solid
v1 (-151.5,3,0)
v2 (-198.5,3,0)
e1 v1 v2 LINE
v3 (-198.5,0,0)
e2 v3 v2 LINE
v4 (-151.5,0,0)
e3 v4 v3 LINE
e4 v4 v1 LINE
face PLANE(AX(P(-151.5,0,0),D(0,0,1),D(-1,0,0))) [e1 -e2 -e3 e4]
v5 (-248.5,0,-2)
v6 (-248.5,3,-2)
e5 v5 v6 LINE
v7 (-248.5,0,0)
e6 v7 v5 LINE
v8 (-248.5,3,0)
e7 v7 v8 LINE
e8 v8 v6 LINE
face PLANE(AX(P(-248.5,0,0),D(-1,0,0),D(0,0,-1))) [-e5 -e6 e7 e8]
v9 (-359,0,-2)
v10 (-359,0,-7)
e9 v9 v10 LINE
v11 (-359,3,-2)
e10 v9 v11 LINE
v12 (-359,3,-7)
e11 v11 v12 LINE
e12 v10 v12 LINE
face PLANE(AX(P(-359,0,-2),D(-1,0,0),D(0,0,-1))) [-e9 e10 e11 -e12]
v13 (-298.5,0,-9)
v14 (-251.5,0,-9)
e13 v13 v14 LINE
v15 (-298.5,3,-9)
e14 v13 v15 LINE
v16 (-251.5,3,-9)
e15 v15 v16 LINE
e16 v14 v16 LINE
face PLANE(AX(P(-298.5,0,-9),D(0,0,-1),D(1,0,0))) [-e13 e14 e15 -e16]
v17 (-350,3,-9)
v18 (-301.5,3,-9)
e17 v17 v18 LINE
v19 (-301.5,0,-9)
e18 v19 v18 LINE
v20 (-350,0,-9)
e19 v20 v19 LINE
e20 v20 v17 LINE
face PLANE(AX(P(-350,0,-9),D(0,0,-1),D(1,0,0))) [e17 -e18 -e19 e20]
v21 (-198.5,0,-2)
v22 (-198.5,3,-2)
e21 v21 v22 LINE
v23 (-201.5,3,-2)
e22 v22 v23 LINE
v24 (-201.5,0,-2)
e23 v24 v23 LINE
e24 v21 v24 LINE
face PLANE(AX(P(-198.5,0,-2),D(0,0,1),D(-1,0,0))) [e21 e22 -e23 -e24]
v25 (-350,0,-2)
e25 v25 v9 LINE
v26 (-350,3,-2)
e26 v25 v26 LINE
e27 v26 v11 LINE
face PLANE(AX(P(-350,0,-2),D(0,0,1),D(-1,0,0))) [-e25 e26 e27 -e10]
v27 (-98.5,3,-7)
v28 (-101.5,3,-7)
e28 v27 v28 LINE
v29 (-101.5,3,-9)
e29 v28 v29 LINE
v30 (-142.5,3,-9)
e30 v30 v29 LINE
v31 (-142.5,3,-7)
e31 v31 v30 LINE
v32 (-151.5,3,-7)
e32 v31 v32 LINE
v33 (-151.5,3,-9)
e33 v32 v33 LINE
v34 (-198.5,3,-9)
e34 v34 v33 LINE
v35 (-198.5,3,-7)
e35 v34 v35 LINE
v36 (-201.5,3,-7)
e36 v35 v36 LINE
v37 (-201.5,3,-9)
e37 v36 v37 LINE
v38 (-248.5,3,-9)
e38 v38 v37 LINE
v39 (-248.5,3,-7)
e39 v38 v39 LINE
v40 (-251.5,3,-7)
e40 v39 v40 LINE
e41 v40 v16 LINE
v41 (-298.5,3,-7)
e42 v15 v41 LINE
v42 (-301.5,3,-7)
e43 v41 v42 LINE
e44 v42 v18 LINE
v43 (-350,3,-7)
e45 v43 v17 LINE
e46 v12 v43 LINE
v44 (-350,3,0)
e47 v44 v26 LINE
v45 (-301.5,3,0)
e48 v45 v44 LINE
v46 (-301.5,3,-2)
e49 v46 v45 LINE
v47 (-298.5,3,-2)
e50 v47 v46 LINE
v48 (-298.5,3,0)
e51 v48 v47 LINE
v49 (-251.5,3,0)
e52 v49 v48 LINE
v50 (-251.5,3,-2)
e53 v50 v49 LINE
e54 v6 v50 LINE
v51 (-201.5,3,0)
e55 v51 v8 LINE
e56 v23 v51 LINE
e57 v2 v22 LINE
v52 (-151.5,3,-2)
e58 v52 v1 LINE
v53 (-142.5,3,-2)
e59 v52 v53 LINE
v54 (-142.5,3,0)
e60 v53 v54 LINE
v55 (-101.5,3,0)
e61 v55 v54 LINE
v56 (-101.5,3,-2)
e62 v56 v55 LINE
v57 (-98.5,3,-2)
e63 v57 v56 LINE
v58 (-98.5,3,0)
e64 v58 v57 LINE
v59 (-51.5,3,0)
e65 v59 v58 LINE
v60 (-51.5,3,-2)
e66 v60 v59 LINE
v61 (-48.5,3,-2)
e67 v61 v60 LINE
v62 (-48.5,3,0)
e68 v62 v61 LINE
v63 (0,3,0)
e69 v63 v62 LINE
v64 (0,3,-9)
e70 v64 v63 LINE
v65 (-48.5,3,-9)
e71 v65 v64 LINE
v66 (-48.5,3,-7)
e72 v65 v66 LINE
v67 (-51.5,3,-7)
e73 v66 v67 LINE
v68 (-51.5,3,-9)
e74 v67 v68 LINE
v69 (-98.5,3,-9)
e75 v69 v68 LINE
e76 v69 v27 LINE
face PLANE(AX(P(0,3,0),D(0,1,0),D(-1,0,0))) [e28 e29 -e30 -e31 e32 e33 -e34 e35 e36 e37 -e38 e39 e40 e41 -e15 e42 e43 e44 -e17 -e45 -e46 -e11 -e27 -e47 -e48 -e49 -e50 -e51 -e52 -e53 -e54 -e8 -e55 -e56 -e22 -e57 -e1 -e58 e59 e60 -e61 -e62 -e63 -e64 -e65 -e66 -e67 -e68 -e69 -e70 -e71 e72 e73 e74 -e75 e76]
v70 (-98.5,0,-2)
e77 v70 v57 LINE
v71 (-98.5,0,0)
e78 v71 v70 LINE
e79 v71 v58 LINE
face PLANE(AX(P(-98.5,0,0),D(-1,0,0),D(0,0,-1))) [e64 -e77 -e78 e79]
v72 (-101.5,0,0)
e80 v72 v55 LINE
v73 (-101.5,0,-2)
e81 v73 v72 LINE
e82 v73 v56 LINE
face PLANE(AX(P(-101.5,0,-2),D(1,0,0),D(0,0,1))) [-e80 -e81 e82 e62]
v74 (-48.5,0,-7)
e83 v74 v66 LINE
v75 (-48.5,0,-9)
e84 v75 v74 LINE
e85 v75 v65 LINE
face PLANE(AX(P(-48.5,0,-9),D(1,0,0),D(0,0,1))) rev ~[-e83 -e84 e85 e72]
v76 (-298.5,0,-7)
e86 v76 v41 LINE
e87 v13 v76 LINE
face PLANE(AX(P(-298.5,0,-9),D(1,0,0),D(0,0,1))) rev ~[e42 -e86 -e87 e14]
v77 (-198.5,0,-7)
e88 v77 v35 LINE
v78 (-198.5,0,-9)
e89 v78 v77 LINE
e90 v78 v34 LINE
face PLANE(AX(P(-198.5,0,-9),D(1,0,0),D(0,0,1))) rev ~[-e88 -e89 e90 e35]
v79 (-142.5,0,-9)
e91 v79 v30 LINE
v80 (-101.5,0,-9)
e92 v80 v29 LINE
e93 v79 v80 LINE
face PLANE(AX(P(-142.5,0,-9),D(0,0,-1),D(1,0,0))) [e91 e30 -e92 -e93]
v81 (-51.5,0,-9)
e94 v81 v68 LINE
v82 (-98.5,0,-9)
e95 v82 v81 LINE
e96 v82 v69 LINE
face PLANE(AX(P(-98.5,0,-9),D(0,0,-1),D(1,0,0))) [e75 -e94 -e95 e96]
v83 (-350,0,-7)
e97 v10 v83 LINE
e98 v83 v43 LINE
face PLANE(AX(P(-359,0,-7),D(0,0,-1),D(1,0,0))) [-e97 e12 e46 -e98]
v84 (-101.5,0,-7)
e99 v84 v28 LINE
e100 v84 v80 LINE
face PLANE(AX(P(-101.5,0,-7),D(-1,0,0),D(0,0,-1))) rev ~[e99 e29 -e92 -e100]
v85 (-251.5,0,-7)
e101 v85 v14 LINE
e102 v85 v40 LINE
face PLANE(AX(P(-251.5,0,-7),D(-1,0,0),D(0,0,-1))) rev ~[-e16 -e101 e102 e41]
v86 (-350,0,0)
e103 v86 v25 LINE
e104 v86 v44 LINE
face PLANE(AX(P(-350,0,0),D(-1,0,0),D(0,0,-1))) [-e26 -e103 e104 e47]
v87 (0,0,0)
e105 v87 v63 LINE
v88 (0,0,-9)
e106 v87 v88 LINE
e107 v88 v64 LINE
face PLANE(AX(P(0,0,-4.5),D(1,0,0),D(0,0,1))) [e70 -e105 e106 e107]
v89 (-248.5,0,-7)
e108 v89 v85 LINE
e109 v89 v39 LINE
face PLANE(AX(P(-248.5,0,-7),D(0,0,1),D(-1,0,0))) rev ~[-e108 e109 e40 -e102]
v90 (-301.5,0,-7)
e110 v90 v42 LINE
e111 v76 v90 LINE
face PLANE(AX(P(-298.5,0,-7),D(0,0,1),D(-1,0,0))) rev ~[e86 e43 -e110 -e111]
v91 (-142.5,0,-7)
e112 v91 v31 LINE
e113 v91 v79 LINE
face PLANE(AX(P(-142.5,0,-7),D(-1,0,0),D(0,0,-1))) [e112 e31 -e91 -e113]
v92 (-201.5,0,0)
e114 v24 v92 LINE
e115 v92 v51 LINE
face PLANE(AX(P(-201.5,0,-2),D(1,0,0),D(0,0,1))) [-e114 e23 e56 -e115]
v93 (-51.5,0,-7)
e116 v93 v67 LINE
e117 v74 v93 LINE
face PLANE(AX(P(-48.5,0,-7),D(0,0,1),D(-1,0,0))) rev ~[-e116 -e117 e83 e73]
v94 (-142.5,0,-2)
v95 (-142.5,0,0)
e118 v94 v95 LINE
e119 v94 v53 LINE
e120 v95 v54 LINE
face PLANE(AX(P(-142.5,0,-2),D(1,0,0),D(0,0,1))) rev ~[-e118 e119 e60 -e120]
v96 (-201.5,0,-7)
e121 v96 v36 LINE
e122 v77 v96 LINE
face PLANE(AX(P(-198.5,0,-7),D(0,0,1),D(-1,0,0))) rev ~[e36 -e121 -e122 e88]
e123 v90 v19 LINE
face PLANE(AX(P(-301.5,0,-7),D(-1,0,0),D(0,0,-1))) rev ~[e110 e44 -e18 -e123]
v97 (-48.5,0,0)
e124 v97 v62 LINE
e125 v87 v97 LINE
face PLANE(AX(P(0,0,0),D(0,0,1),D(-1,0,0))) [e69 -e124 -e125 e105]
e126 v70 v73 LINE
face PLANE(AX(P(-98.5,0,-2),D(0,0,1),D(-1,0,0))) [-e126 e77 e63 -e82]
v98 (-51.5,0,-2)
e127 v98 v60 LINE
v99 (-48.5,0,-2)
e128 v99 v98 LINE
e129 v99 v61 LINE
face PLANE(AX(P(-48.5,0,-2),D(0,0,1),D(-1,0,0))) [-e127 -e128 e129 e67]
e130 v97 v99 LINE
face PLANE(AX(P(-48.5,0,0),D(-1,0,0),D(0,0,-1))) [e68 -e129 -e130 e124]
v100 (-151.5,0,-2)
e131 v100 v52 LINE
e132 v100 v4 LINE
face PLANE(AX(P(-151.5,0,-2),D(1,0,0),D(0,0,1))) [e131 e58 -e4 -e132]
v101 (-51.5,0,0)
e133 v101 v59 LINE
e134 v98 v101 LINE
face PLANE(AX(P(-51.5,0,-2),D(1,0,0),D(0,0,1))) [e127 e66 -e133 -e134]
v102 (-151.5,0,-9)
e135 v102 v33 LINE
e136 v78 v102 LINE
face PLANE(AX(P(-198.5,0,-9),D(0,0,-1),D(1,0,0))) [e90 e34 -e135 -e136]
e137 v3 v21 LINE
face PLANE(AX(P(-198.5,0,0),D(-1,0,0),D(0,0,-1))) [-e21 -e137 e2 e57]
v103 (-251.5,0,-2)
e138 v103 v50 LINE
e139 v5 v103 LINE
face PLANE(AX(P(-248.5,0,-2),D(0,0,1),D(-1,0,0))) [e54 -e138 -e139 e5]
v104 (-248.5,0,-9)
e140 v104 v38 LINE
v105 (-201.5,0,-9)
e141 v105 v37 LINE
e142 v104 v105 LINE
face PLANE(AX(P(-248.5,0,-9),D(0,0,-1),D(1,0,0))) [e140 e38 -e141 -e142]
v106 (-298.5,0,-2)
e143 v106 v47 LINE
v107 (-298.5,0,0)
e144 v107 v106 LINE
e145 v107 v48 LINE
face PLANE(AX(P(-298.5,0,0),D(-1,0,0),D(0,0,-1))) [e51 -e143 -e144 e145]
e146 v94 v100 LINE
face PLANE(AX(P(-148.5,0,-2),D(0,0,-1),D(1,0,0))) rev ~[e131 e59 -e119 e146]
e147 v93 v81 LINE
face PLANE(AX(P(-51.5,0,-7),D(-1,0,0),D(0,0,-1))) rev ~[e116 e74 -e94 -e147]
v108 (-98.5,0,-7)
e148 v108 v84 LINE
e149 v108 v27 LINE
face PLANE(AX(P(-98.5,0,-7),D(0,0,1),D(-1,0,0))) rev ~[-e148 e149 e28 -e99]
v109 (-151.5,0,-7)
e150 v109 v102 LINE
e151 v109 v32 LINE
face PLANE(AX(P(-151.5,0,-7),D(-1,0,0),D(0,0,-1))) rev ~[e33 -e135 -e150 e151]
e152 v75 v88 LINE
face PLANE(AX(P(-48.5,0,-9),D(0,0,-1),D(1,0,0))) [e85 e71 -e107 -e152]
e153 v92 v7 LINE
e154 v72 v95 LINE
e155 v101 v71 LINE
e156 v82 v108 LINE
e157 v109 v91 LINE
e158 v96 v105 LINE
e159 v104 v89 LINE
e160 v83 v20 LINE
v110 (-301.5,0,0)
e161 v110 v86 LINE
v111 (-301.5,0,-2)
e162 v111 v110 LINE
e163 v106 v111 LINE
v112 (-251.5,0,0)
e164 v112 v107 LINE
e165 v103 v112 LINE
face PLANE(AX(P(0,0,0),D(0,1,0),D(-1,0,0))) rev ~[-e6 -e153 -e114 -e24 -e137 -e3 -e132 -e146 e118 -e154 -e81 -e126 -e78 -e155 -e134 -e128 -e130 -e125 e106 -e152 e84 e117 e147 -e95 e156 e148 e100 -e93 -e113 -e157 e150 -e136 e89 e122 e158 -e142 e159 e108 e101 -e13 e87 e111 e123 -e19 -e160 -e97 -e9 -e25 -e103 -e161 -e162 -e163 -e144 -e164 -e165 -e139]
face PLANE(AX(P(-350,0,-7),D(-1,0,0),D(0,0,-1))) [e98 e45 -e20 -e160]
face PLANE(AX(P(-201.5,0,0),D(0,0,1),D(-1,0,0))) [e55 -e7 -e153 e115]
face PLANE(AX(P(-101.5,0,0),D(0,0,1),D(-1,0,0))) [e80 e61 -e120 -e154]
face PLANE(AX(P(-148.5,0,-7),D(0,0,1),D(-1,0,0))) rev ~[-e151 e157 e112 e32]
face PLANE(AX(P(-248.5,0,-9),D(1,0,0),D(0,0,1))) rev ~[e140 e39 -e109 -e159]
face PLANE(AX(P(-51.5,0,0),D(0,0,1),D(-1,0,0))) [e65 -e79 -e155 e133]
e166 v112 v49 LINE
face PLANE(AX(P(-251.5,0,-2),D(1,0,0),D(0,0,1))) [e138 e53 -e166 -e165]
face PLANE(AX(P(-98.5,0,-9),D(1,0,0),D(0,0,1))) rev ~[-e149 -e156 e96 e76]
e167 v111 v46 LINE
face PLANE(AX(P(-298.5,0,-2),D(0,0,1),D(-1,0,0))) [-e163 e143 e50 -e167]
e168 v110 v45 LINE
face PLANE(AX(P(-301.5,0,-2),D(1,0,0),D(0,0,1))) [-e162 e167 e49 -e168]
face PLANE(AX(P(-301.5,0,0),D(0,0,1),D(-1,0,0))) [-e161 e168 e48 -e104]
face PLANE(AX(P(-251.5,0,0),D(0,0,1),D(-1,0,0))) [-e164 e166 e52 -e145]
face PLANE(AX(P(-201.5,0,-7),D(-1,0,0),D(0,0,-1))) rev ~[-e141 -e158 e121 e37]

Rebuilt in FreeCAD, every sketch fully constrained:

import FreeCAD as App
import Part
import Sketcher

V = App.Vector
Q = App.Units.Quantity


def add_polygon(sketch, points):
    """Adds a closed chain of lines whose ends are joined by coincident constraints."""
    first, n = sketch.GeometryCount, len(points)
    for a, b in zip(points, points[1:] + points[:1]):
        sketch.addGeometry(Part.LineSegment(App.Vector(*a, 0), App.Vector(*b, 0)), False)
    for i in range(n):
        sketch.addConstraint(Sketcher.Constraint("Coincident", first + i, 2, first + (i + 1) % n, 1))

doc = App.newDocument("Part")
body = doc.addObject("PartDesign::Body", "Body")

# Sketch on XZ plane
sketch1 = body.newObject("Sketcher::SketchObject", "Sketch")
sketch1.AttachmentSupport = (doc.getObject("XZ_Plane"), [""])
sketch1.MapMode = "FlatFace"
add_polygon(sketch1, [(-48.5, 0), (0, 0), (0, -9), (-48.5, -9), (-48.5, -7), (-51.5, -7), (-51.5, -9), (-98.5, -9), (-98.5, -7), (-101.5, -7), (-101.5, -9), (-142.5, -9), (-142.5, -7), (-151.5, -7), (-151.5, -9), (-198.5, -9), (-198.5, -7), (-201.5, -7), (-201.5, -9), (-248.5, -9), (-248.5, -7), (-251.5, -7), (-251.5, -9), (-298.5, -9), (-298.5, -7), (-301.5, -7), (-301.5, -9), (-350, -9), (-350, -7), (-359, -7), (-359, -2), (-350, -2), (-350, 0), (-301.5, 0), (-301.5, -2), (-298.5, -2), (-298.5, 0), (-251.5, 0), (-251.5, -2), (-248.5, -2), (-248.5, 0), (-201.5, 0), (-201.5, -2), (-198.5, -2), (-198.5, 0), (-151.5, 0), (-151.5, -2), (-142.5, -2), (-142.5, 0), (-101.5, 0), (-101.5, -2), (-98.5, -2), (-98.5, 0), (-51.5, 0), (-51.5, -2), (-48.5, -2)])  # lines 0-55
sketch1.addConstraint(Sketcher.Constraint("Horizontal", 0))
sketch1.addConstraint(Sketcher.Constraint("Vertical", 1))
sketch1.addConstraint(Sketcher.Constraint("Horizontal", 2))
sketch1.addConstraint(Sketcher.Constraint("Vertical", 3))
sketch1.addConstraint(Sketcher.Constraint("Horizontal", 4))
sketch1.addConstraint(Sketcher.Constraint("Vertical", 5))
sketch1.addConstraint(Sketcher.Constraint("Horizontal", 6))
sketch1.addConstraint(Sketcher.Constraint("Vertical", 7))
sketch1.addConstraint(Sketcher.Constraint("Horizontal", 8))
sketch1.addConstraint(Sketcher.Constraint("Vertical", 9))
sketch1.addConstraint(Sketcher.Constraint("Horizontal", 10))
sketch1.addConstraint(Sketcher.Constraint("Vertical", 11))
sketch1.addConstraint(Sketcher.Constraint("Horizontal", 12))
sketch1.addConstraint(Sketcher.Constraint("Vertical", 13))
sketch1.addConstraint(Sketcher.Constraint("Horizontal", 14))
sketch1.addConstraint(Sketcher.Constraint("Vertical", 15))
sketch1.addConstraint(Sketcher.Constraint("Horizontal", 16))
sketch1.addConstraint(Sketcher.Constraint("Vertical", 17))
sketch1.addConstraint(Sketcher.Constraint("Horizontal", 18))
sketch1.addConstraint(Sketcher.Constraint("Vertical", 19))
sketch1.addConstraint(Sketcher.Constraint("Horizontal", 20))
sketch1.addConstraint(Sketcher.Constraint("Vertical", 21))
sketch1.addConstraint(Sketcher.Constraint("Horizontal", 22))
sketch1.addConstraint(Sketcher.Constraint("Vertical", 23))
sketch1.addConstraint(Sketcher.Constraint("Horizontal", 24))
sketch1.addConstraint(Sketcher.Constraint("Vertical", 25))
sketch1.addConstraint(Sketcher.Constraint("Horizontal", 26))
sketch1.addConstraint(Sketcher.Constraint("Vertical", 27))
sketch1.addConstraint(Sketcher.Constraint("Horizontal", 28))
sketch1.addConstraint(Sketcher.Constraint("Vertical", 29))
sketch1.addConstraint(Sketcher.Constraint("Horizontal", 30))
sketch1.addConstraint(Sketcher.Constraint("Vertical", 31))
sketch1.addConstraint(Sketcher.Constraint("Horizontal", 32))
sketch1.addConstraint(Sketcher.Constraint("Vertical", 33))
sketch1.addConstraint(Sketcher.Constraint("Horizontal", 34))
sketch1.addConstraint(Sketcher.Constraint("Vertical", 35))
sketch1.addConstraint(Sketcher.Constraint("Horizontal", 36))
sketch1.addConstraint(Sketcher.Constraint("Vertical", 37))
sketch1.addConstraint(Sketcher.Constraint("Horizontal", 38))
sketch1.addConstraint(Sketcher.Constraint("Vertical", 39))
sketch1.addConstraint(Sketcher.Constraint("Horizontal", 40))
sketch1.addConstraint(Sketcher.Constraint("Vertical", 41))
sketch1.addConstraint(Sketcher.Constraint("Horizontal", 42))
sketch1.addConstraint(Sketcher.Constraint("Vertical", 43))
sketch1.addConstraint(Sketcher.Constraint("Horizontal", 44))
sketch1.addConstraint(Sketcher.Constraint("Vertical", 45))
sketch1.addConstraint(Sketcher.Constraint("Horizontal", 46))
sketch1.addConstraint(Sketcher.Constraint("Vertical", 47))
sketch1.addConstraint(Sketcher.Constraint("Horizontal", 48))
sketch1.addConstraint(Sketcher.Constraint("Vertical", 49))
sketch1.addConstraint(Sketcher.Constraint("Horizontal", 50))
sketch1.addConstraint(Sketcher.Constraint("Vertical", 51))
sketch1.addConstraint(Sketcher.Constraint("Horizontal", 52))
sketch1.addConstraint(Sketcher.Constraint("Vertical", 53))
sketch1.addConstraint(Sketcher.Constraint("Horizontal", 54))
sketch1.addConstraint(Sketcher.Constraint("Vertical", 55))
sketch1.addConstraint(Sketcher.Constraint("Coincident", 0, 2, -1, 1))
sketch1.addConstraint(Sketcher.Constraint("PointOnObject", 31, 2, -1))
sketch1.addConstraint(Sketcher.Constraint("PointOnObject", 35, 2, -1))
sketch1.addConstraint(Sketcher.Constraint("PointOnObject", 39, 2, -1))
sketch1.addConstraint(Sketcher.Constraint("PointOnObject", 43, 2, -1))
sketch1.addConstraint(Sketcher.Constraint("PointOnObject", 47, 2, -1))
sketch1.addConstraint(Sketcher.Constraint("PointOnObject", 51, 2, -1))
sketch1.addConstraint(Sketcher.Constraint("Horizontal", 2, 2, 5, 2))
sketch1.addConstraint(Sketcher.Constraint("Horizontal", 4, 2, 7, 2))
sketch1.addConstraint(Sketcher.Constraint("Horizontal", 6, 2, 9, 2))
sketch1.addConstraint(Sketcher.Constraint("Horizontal", 8, 2, 11, 2))
sketch1.addConstraint(Sketcher.Constraint("Horizontal", 10, 2, 13, 2))
sketch1.addConstraint(Sketcher.Constraint("Horizontal", 12, 2, 15, 2))
sketch1.addConstraint(Sketcher.Constraint("Horizontal", 14, 2, 17, 2))
sketch1.addConstraint(Sketcher.Constraint("Horizontal", 16, 2, 19, 2))
sketch1.addConstraint(Sketcher.Constraint("Horizontal", 18, 2, 21, 2))
sketch1.addConstraint(Sketcher.Constraint("Horizontal", 20, 2, 23, 2))
sketch1.addConstraint(Sketcher.Constraint("Horizontal", 22, 2, 25, 2))
sketch1.addConstraint(Sketcher.Constraint("Horizontal", 24, 2, 27, 2))
sketch1.addConstraint(Sketcher.Constraint("Horizontal", 30, 2, 33, 2))
sketch1.addConstraint(Sketcher.Constraint("Horizontal", 34, 2, 37, 2))
sketch1.addConstraint(Sketcher.Constraint("Horizontal", 38, 2, 41, 2))
sketch1.addConstraint(Sketcher.Constraint("Horizontal", 42, 2, 45, 2))
sketch1.addConstraint(Sketcher.Constraint("Horizontal", 46, 2, 49, 2))
sketch1.addConstraint(Sketcher.Constraint("Horizontal", 50, 2, 53, 2))
sketch1.addConstraint(Sketcher.Constraint("Vertical", 27, 2, 30, 2))
sketch1.addConstraint(Sketcher.Constraint("Vertical", 25, 2, 32, 2))
sketch1.addConstraint(Sketcher.Constraint("Vertical", 23, 2, 34, 2))
sketch1.addConstraint(Sketcher.Constraint("Vertical", 21, 2, 36, 2))
sketch1.addConstraint(Sketcher.Constraint("Vertical", 19, 2, 38, 2))
sketch1.addConstraint(Sketcher.Constraint("Vertical", 17, 2, 40, 2))
sketch1.addConstraint(Sketcher.Constraint("Vertical", 15, 2, 42, 2))
sketch1.addConstraint(Sketcher.Constraint("Vertical", 13, 2, 44, 2))
sketch1.addConstraint(Sketcher.Constraint("Vertical", 11, 2, 46, 2))
sketch1.addConstraint(Sketcher.Constraint("Vertical", 9, 2, 48, 2))
sketch1.addConstraint(Sketcher.Constraint("Vertical", 7, 2, 50, 2))
sketch1.addConstraint(Sketcher.Constraint("Vertical", 5, 2, 52, 2))
sketch1.addConstraint(Sketcher.Constraint("Vertical", 3, 2, 54, 2))
sketch1.addConstraint(Sketcher.Constraint("Equal", 4, 8))
sketch1.addConstraint(Sketcher.Constraint("Equal", 6, 14))
sketch1.addConstraint(Sketcher.Constraint("Equal", 8, 16))
sketch1.addConstraint(Sketcher.Constraint("Equal", 14, 18))
sketch1.addConstraint(Sketcher.Constraint("Equal", 16, 20))
sketch1.addConstraint(Sketcher.Constraint("Equal", 18, 22))
sketch1.addConstraint(Sketcher.Constraint("Equal", 20, 24))
sketch1.addConstraint(Sketcher.Constraint("Equal", 2, 26))
sketch1.addConstraint(Sketcher.Constraint("Equal", 12, 28))
sketch1.addConstraint(Sketcher.Constraint("Equal", 46, 1))
sketch1.addConstraint(Sketcher.Constraint("Equal", 27, 31))
sketch1.addConstraint(Sketcher.Constraint("DistanceX", 4, 2, 4, 1, Q("3 mm")))
sketch1.addConstraint(Sketcher.Constraint("DistanceX", 12, 2, 12, 1, Q("9 mm")))
sketch1.addConstraint(Sketcher.Constraint("DistanceY", 3, 1, 3, 2, Q("2 mm")))
sketch1.addConstraint(Sketcher.Constraint("DistanceX", 26, 2, -1, 1, Q("350 mm")))
sketch1.addConstraint(Sketcher.Constraint("DistanceX", 6, 2, 2, 2, Q("50 mm")))
sketch1.addConstraint(Sketcher.Constraint("DistanceX", 12, 2, 8, 2, Q("50 mm")))
pad1 = body.newObject("PartDesign::Pad", "Pad")
pad1.Profile = sketch1
pad1.Length = 3
pad1.Reversed = True

doc.recompute()
